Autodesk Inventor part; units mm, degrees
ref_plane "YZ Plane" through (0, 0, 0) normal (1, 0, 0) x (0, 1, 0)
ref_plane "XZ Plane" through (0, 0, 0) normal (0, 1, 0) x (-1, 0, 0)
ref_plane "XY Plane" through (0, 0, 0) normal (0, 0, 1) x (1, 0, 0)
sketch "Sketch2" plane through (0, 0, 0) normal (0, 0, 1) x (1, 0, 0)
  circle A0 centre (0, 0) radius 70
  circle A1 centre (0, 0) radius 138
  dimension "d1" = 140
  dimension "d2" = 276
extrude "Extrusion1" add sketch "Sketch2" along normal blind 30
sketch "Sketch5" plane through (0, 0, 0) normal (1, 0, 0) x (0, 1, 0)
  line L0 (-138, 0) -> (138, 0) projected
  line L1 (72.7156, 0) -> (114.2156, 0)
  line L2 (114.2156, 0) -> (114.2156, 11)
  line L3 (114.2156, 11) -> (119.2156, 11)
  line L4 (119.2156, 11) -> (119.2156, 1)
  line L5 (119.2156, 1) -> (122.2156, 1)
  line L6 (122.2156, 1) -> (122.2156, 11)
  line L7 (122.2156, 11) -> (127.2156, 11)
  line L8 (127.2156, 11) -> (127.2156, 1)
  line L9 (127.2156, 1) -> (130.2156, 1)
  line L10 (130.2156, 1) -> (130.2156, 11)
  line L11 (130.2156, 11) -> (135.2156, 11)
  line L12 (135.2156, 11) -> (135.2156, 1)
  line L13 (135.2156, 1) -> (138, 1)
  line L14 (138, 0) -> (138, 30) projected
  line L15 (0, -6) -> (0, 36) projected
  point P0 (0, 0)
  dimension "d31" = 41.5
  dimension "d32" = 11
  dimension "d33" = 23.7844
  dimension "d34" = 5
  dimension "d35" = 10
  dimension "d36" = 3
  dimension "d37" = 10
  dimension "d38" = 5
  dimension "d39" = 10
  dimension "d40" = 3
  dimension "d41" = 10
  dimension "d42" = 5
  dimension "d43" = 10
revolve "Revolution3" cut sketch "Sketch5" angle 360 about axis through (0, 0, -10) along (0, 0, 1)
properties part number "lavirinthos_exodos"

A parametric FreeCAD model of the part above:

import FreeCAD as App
import Part
import Sketcher

V = App.Vector
Q = App.Units.Quantity


def add_polygon(sketch, points):
    """Adds a closed chain of lines whose ends are joined by coincident constraints."""
    first, n = sketch.GeometryCount, len(points)
    for a, b in zip(points, points[1:] + points[:1]):
        sketch.addGeometry(Part.LineSegment(App.Vector(*a, 0), App.Vector(*b, 0)), False)
    for i in range(n):
        sketch.addConstraint(Sketcher.Constraint("Coincident", first + i, 2, first + (i + 1) % n, 1))

doc = App.newDocument("Part")
body = doc.addObject("PartDesign::Body", "Body")

# Sketch on XY plane
sketch1 = body.newObject("Sketcher::SketchObject", "Sketch")
sketch1.AttachmentSupport = (doc.getObject("XY_Plane"), [""])
sketch1.MapMode = "FlatFace"
sketch1.addGeometry([
    Part.Circle(V(0, 0, 0), V(0, 0, 1), 138),
    Part.Circle(V(0, 0, 0), V(0, 0, 1), 70),
], False)
sketch1.addConstraint([
    Sketcher.Constraint("Coincident", 0, 3, -1, 1),
    Sketcher.Constraint("Coincident", 1, 3, -1, 1),
    Sketcher.Constraint("Diameter", 0, Q("276 mm")),
    Sketcher.Constraint("Diameter", 1, Q("140 mm")),
])
pad1 = body.newObject("PartDesign::Pad", "Pad")
pad1.Profile = sketch1
pad1.Length = 30

# Sketch on YZ plane
sketch2 = body.newObject("Sketcher::SketchObject", "Sketch001")
sketch2.AttachmentSupport = (doc.getObject("YZ_Plane"), [""])
sketch2.MapMode = "FlatFace"
add_polygon(sketch2, [(114.2156, 11), (114.2156, 0), (138, 0), (138, 1), (135.2156, 1), (135.2156, 11), (130.2156, 11), (130.2156, 1), (127.2156, 1), (127.2156, 11), (122.2156, 11), (122.2156, 1), (119.2156, 1), (119.2156, 11)])  # lines 0-13
sketch2.addConstraint([
    Sketcher.Constraint("Vertical", 0),
    Sketcher.Constraint("Horizontal", 1),
    Sketcher.Constraint("Vertical", 2),
    Sketcher.Constraint("Horizontal", 3),
    Sketcher.Constraint("Vertical", 4),
    Sketcher.Constraint("Horizontal", 5),
    Sketcher.Constraint("Vertical", 6),
    Sketcher.Constraint("Horizontal", 7),
    Sketcher.Constraint("Vertical", 8),
    Sketcher.Constraint("Horizontal", 9),
    Sketcher.Constraint("Vertical", 10),
    Sketcher.Constraint("Horizontal", 11),
    Sketcher.Constraint("Vertical", 12),
    Sketcher.Constraint("Horizontal", 13),
    Sketcher.Constraint("PointOnObject", 0, 2, -1),
    Sketcher.Constraint("Horizontal", 3, 2, 6, 2),
    Sketcher.Constraint("Horizontal", 5, 2, 8, 2),
    Sketcher.Constraint("Horizontal", 7, 2, 10, 2),
    Sketcher.Constraint("Horizontal", 9, 2, 12, 2),
    Sketcher.Constraint("Equal", 5, 9),
    Sketcher.Constraint("Equal", 7, 11),
    Sketcher.Constraint("Equal", 9, 13),
    Sketcher.Constraint("DistanceX", 5, 2, 5, 1, Q("5 mm")),
    Sketcher.Constraint("DistanceX", 7, 2, 7, 1, Q("3 mm")),
    Sketcher.Constraint("DistanceY", 0, 2, 0, 1, Q("11 mm")),
    Sketcher.Constraint("DistanceY", 4, 1, 4, 2, Q("10 mm")),
    Sketcher.Constraint("DistanceX", 1, 1, 1, 2, Q("23.7844 mm")),
    Sketcher.Constraint("DistanceX", -1, 1, 1, 2, Q("138 mm")),
])
groove = body.newObject("PartDesign::Groove", "Groove")
groove.Profile = sketch2
groove.ReferenceAxis = (sketch2, ["V_Axis"])
groove.Angle = 360

doc.recompute()
